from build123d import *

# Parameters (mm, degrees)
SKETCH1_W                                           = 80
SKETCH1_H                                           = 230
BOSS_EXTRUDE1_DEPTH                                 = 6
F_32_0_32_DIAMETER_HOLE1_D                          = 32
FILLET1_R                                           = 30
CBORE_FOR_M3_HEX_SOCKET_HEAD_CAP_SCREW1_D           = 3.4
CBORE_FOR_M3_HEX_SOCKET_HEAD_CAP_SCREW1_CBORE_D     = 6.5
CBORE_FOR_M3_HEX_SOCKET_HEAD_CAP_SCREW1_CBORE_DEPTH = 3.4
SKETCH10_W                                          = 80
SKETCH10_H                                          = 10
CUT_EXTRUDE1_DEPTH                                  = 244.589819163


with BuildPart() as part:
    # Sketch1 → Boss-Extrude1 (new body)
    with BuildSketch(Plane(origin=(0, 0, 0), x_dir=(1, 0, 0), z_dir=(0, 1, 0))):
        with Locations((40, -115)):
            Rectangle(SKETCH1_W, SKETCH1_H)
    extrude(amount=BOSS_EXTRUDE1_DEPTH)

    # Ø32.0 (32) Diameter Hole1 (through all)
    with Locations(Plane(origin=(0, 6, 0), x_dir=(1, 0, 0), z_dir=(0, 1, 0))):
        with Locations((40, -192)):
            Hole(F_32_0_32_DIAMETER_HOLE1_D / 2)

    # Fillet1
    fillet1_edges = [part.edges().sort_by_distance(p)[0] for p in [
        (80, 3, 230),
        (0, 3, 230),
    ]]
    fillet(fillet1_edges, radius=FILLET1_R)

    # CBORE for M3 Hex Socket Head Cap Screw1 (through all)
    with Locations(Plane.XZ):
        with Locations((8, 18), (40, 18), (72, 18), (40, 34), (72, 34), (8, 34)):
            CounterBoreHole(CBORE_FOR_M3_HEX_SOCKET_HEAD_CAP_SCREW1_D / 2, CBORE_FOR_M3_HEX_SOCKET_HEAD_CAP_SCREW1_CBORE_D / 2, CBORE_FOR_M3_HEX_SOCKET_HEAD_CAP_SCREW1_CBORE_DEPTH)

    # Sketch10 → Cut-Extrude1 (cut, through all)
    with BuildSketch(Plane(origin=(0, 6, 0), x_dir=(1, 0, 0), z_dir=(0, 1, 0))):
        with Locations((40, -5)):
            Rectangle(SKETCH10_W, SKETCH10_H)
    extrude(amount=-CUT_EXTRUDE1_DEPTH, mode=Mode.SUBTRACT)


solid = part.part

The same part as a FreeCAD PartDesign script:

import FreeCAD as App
import Part
import Sketcher

V = App.Vector
Q = App.Units.Quantity


def edges_at(feature, points):
    """Names of the edges that pass closest to the given points."""
    edges = feature.Shape.Edges
    near = lambda p: min(range(len(edges)), key=lambda i: edges[i].distToShape(Part.Vertex(*p))[0])
    return sorted({f"Edge{near(p) + 1}" for p in points})


def add_polygon(sketch, points):
    """Adds a closed chain of lines whose ends are joined by coincident constraints."""
    first, n = sketch.GeometryCount, len(points)
    for a, b in zip(points, points[1:] + points[:1]):
        sketch.addGeometry(Part.LineSegment(App.Vector(*a, 0), App.Vector(*b, 0)), False)
    for i in range(n):
        sketch.addConstraint(Sketcher.Constraint("Coincident", first + i, 2, first + (i + 1) % n, 1))

doc = App.newDocument("Part")
body = doc.addObject("PartDesign::Body", "Body")

# Sketch on XZ plane
sketch1 = body.newObject("Sketcher::SketchObject", "Sketch")
sketch1.AttachmentSupport = (doc.getObject("XZ_Plane"), [""])
sketch1.MapMode = "FlatFace"
add_polygon(sketch1, [(0, 0), (0, 230), (80, 230), (80, 0)])  # lines 0-3
sketch1.addConstraint(Sketcher.Constraint("Vertical", 0))
sketch1.addConstraint(Sketcher.Constraint("Horizontal", 1))
sketch1.addConstraint(Sketcher.Constraint("Vertical", 2))
sketch1.addConstraint(Sketcher.Constraint("Horizontal", 3))
sketch1.addConstraint(Sketcher.Constraint("Coincident", 3, 2, -1, 1))
sketch1.addConstraint(Sketcher.Constraint("DistanceX", 1, 1, 1, 2, Q("80 mm")))
sketch1.addConstraint(Sketcher.Constraint("DistanceY", 0, 1, 0, 2, Q("230 mm")))
pad1 = body.newObject("PartDesign::Pad", "Pad")
pad1.Profile = sketch1
pad1.Length = 6
pad1.Reversed = True

# Sketch on XZ plane
sketch2 = body.newObject("Sketcher::SketchObject", "Sketch001")
sketch2.AttachmentSupport = (doc.getObject("XZ_Plane"), [""])
sketch2.MapMode = "FlatFace"
sketch2.AttachmentOffset = App.Placement(V(0, 0, -6), App.Rotation())
sketch2.addGeometry(Part.Circle(V(40, 192, 0), V(0, 0, 1), 16), False)
sketch2.addConstraint(Sketcher.Constraint("Diameter", 0, Q("32 mm")))
sketch2.addConstraint(Sketcher.Constraint("DistanceX", -1, 1, 0, 3, Q("40 mm")))
sketch2.addConstraint(Sketcher.Constraint("DistanceY", -1, 1, 0, 3, Q("192 mm")))
doc.recompute()
hole = body.newObject("PartDesign::Hole", "Hole")
hole.Profile = sketch2
hole.ThreadType = "None"
hole.Diameter = 32
hole.DepthType = "ThroughAll"
hole.Reversed = True
doc.recompute()

fillet = body.newObject("PartDesign::Fillet", "Fillet")
fillet.Base = (hole, edges_at(hole, [(80, 3, 230), (0, 3, 230)]))
fillet.Radius = 30

# Sketch on XZ plane
sketch3 = body.newObject("Sketcher::SketchObject", "Sketch002")
sketch3.AttachmentSupport = (doc.getObject("XZ_Plane"), [""])
sketch3.MapMode = "FlatFace"
sketch3.addGeometry(Part.Circle(V(8, 18, 0), V(0, 0, 1), 1.7), False)
sketch3.addGeometry(Part.Circle(V(40, 18, 0), V(0, 0, 1), 1.7), False)
sketch3.addGeometry(Part.Circle(V(72, 18, 0), V(0, 0, 1), 1.7), False)
sketch3.addGeometry(Part.Circle(V(40, 34, 0), V(0, 0, 1), 1.7), False)
sketch3.addGeometry(Part.Circle(V(72, 34, 0), V(0, 0, 1), 1.7), False)
sketch3.addGeometry(Part.Circle(V(8, 34, 0), V(0, 0, 1), 1.7), False)
sketch3.addConstraint(Sketcher.Constraint("Equal", 0, 1))
sketch3.addConstraint(Sketcher.Constraint("Equal", 1, 2))
sketch3.addConstraint(Sketcher.Constraint("Equal", 2, 3))
sketch3.addConstraint(Sketcher.Constraint("Equal", 3, 4))
sketch3.addConstraint(Sketcher.Constraint("Equal", 4, 5))
sketch3.addConstraint(Sketcher.Constraint("Horizontal", 0, 3, 1, 3))
sketch3.addConstraint(Sketcher.Constraint("Horizontal", 1, 3, 2, 3))
sketch3.addConstraint(Sketcher.Constraint("Horizontal", 3, 3, 4, 3))
sketch3.addConstraint(Sketcher.Constraint("Horizontal", 4, 3, 5, 3))
sketch3.addConstraint(Sketcher.Constraint("Vertical", 1, 3, 3, 3))
sketch3.addConstraint(Sketcher.Constraint("Vertical", 2, 3, 4, 3))
sketch3.addConstraint(Sketcher.Constraint("Vertical", 0, 3, 5, 3))
sketch3.addConstraint(Sketcher.Constraint("Diameter", 0, Q("3.4 mm")))
sketch3.addConstraint(Sketcher.Constraint("DistanceX", -1, 1, 0, 3, Q("8 mm")))
sketch3.addConstraint(Sketcher.Constraint("DistanceY", -1, 1, 0, 3, Q("18 mm")))
sketch3.addConstraint(Sketcher.Constraint("DistanceX", -1, 1, 1, 3, Q("40 mm")))
sketch3.addConstraint(Sketcher.Constraint("DistanceX", -1, 1, 2, 3, Q("72 mm")))
sketch3.addConstraint(Sketcher.Constraint("DistanceY", -1, 1, 3, 3, Q("34 mm")))
doc.recompute()
hole2 = body.newObject("PartDesign::Hole", "Hole001")
hole2.Profile = sketch3
hole2.ThreadType = "None"
hole2.Diameter = 3.4
hole2.DepthType = "ThroughAll"
hole2.HoleCutType = "Counterbore"
hole2.HoleCutDiameter = 6.5
hole2.HoleCutDepth = 3.4

# Sketch on XZ plane
sketch4 = body.newObject("Sketcher::SketchObject", "Sketch003")
sketch4.AttachmentSupport = (doc.getObject("XZ_Plane"), [""])
sketch4.MapMode = "FlatFace"
sketch4.AttachmentOffset = App.Placement(V(0, 0, -6), App.Rotation())
add_polygon(sketch4, [(0, 0), (0, 10), (80, 10), (80, 0)])  # lines 0-3
sketch4.addConstraint(Sketcher.Constraint("Vertical", 0))
sketch4.addConstraint(Sketcher.Constraint("Horizontal", 1))
sketch4.addConstraint(Sketcher.Constraint("Vertical", 2))
sketch4.addConstraint(Sketcher.Constraint("Horizontal", 3))
sketch4.addConstraint(Sketcher.Constraint("Coincident", 3, 2, -1, 1))
sketch4.addConstraint(Sketcher.Constraint("DistanceX", 1, 1, 1, 2, Q("80 mm")))
sketch4.addConstraint(Sketcher.Constraint("DistanceY", 0, 1, 0, 2, Q("10 mm")))
pocket1 = body.newObject("PartDesign::Pocket", "Pocket")
pocket1.Profile = sketch4
pocket1.Type = "ThroughAll"
pocket1.Reversed = True

doc.recompute()
